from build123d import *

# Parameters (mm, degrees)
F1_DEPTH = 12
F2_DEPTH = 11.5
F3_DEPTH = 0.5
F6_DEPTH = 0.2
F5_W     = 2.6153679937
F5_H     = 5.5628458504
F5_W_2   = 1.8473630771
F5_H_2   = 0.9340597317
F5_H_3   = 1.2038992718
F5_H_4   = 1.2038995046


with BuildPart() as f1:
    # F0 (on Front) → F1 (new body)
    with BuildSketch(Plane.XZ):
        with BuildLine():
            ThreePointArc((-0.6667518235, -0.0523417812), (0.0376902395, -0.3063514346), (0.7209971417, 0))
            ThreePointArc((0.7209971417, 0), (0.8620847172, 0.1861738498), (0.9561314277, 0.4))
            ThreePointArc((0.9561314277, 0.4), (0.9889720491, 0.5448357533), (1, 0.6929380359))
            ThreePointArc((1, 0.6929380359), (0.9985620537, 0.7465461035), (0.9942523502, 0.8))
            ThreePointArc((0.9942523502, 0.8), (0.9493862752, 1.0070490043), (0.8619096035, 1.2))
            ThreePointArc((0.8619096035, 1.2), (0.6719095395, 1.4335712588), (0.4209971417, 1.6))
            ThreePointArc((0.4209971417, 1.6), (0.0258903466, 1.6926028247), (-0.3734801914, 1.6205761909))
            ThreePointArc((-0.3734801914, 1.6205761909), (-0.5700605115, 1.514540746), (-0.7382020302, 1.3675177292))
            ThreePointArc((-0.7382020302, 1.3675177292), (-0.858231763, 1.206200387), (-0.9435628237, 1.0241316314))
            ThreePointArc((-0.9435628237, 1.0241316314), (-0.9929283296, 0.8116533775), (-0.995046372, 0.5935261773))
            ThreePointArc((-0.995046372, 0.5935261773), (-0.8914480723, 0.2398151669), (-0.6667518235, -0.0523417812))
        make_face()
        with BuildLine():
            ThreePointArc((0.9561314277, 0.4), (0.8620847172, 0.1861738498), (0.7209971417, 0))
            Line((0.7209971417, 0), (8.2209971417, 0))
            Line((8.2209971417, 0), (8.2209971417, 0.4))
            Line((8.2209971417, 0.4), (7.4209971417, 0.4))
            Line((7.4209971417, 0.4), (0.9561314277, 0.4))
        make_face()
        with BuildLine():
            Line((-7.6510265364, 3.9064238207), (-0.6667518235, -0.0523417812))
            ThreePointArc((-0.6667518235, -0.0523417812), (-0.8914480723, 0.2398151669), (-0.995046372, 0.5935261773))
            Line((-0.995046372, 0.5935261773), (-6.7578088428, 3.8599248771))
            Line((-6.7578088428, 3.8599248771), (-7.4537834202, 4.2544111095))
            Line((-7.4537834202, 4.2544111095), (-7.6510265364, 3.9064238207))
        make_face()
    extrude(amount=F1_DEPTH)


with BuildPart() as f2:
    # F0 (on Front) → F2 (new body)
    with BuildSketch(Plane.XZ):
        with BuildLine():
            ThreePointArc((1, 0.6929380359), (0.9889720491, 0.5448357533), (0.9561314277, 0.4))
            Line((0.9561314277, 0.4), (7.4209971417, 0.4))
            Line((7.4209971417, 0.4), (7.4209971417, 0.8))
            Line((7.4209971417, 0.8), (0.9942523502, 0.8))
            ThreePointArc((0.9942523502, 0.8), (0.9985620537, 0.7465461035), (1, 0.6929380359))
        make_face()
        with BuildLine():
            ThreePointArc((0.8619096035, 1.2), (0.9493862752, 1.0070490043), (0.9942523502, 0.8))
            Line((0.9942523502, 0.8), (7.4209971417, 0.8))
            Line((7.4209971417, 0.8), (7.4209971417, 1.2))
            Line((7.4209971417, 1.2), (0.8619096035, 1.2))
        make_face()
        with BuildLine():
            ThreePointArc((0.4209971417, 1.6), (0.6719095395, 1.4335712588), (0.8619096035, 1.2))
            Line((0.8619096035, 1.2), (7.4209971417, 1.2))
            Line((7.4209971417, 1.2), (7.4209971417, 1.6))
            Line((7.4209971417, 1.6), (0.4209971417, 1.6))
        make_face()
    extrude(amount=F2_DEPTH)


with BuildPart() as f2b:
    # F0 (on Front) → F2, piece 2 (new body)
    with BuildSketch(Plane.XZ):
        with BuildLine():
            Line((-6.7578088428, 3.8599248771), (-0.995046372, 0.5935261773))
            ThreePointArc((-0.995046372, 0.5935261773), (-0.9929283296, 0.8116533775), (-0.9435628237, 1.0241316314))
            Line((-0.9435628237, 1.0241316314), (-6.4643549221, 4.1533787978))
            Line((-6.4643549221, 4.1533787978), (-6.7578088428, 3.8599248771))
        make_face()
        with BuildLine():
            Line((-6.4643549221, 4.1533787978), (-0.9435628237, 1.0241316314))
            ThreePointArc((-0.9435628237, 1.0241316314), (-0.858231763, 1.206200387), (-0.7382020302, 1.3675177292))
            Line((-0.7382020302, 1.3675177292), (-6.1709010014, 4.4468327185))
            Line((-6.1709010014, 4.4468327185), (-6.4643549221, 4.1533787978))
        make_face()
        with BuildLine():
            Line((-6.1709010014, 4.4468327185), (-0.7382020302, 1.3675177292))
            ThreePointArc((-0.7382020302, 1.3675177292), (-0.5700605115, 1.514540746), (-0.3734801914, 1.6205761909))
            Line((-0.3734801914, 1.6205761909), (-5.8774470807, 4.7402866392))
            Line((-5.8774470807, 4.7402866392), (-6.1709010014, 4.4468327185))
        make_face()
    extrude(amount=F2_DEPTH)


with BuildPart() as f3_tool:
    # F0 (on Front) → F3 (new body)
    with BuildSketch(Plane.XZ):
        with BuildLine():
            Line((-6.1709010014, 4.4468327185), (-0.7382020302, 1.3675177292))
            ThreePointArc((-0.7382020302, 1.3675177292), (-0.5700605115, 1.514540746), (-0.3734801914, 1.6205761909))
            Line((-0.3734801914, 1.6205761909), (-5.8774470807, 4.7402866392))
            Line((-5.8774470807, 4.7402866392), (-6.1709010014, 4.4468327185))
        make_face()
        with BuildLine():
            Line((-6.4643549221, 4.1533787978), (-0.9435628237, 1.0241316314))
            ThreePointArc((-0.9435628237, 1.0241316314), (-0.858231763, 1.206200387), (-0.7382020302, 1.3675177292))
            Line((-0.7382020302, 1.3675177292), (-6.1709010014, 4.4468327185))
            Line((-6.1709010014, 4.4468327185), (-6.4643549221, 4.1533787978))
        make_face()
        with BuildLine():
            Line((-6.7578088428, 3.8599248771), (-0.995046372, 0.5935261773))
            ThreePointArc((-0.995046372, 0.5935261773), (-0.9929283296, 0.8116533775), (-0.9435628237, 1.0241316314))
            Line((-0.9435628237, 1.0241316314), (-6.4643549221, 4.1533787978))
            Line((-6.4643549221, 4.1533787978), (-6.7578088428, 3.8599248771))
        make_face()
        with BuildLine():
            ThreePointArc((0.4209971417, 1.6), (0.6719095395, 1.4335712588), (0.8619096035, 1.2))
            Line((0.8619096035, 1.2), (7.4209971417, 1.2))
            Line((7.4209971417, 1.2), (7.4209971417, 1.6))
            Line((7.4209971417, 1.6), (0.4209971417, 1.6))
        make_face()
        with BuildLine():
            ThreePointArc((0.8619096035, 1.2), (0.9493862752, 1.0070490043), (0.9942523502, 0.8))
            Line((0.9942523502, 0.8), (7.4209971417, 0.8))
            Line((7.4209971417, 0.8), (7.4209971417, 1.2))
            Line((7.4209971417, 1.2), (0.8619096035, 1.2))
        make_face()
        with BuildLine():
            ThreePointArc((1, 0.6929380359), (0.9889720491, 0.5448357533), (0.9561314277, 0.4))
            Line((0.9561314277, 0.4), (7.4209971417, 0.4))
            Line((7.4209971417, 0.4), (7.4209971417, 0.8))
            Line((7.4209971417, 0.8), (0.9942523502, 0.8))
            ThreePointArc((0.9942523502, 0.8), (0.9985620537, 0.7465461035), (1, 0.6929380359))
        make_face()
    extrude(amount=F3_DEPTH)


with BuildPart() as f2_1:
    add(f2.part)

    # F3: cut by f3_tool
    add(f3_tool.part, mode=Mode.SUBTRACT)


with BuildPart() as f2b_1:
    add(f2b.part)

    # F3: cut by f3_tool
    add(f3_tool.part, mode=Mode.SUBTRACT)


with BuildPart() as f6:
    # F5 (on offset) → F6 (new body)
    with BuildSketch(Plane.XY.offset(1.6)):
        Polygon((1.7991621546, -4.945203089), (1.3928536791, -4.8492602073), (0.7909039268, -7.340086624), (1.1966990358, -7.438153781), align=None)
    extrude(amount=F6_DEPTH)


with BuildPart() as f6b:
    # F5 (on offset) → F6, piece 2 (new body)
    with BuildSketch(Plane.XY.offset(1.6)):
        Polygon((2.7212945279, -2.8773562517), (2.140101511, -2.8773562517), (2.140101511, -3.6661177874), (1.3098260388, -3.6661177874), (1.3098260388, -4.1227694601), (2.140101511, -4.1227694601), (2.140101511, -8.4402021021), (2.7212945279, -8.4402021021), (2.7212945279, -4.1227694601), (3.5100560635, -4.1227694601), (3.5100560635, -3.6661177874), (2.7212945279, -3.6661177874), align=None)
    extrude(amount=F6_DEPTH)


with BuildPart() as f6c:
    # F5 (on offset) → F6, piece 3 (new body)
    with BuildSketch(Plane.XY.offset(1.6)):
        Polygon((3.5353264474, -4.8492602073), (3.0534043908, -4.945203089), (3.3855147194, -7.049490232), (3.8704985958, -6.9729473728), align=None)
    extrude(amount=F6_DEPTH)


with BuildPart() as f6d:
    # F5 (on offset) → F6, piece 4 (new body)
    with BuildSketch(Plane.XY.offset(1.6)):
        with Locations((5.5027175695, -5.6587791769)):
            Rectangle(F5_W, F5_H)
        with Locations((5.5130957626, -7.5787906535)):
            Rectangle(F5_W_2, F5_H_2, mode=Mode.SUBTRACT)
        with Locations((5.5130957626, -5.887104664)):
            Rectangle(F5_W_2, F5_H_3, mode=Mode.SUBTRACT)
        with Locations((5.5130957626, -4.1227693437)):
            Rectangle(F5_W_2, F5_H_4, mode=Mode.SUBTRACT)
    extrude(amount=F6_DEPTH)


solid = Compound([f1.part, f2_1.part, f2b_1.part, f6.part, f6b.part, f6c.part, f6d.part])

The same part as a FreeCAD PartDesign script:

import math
import FreeCAD as App
import Part
import Sketcher

V = App.Vector
Q = App.Units.Quantity

doc = App.newDocument("Part")
body = doc.addObject("PartDesign::Body", "Body")

# Sketch on XZ plane
sketch1 = doc.addObject("Sketcher::SketchObject", "Sketch")
body.addObject(sketch1)
sketch1.AttachmentSupport = (doc.XZ_Plane, [""])
sketch1.MapMode = "FlatFace"
sketch1.addGeometry(Part.ArcOfCircle(Part.Circle(V(0, 0.69, 0), V(0, 0, 1), 1), math.radians(-132), math.radians(-44)), False)
sketch1.addGeometry(Part.LineSegment(V(0.72, 0, 0), V(8.22, 0, 0)), False)
sketch1.addGeometry(Part.LineSegment(V(8.22, 0, 0), V(8.22, 0.4, 0)), False)
sketch1.addGeometry(Part.LineSegment(V(8.22, 0.4, 0), V(0.96, 0.4, 0)), False)
sketch1.addGeometry(Part.ArcOfCircle(Part.Circle(V(0, 0.69, 0), V(0, 0, 1), 1), math.radians(-17.03), math.radians(0)), False)
sketch1.addGeometry(Part.ArcOfCircle(Part.Circle(V(0, 0.69, 0), V(0, 0, 1), 1), math.radians(0), math.radians(6.15)), False)
sketch1.addGeometry(Part.ArcOfCircle(Part.Circle(V(0, 0.69, 0), V(0, 0, 1), 1), math.radians(6), math.radians(30)), False)
sketch1.addGeometry(Part.ArcOfCircle(Part.Circle(V(0, 0.69, 0), V(0, 0, 1), 1), math.radians(30), math.radians(65)), False)
sketch1.addGeometry(Part.ArcOfCircle(Part.Circle(V(0, 0.69, 0), V(0, 0, 1), 1), math.radians(65), math.radians(112)), False)
sketch1.addGeometry(Part.ArcOfCircle(Part.Circle(V(0, 0.69, 0), V(0, 0, 1), 1), math.radians(112), math.radians(138)), False)
sketch1.addGeometry(Part.ArcOfCircle(Part.Circle(V(0, 0.69, 0), V(0, 0, 1), 1), math.radians(138), math.radians(161)), False)
sketch1.addGeometry(Part.ArcOfCircle(Part.Circle(V(0, 0.69, 0), V(0, 0, 1), 1), math.radians(161), math.radians(186)), False)
sketch1.addGeometry(Part.LineSegment(V(-1, 0.59, 0), V(-6.76, 3.86, 0)), False)
sketch1.addGeometry(Part.LineSegment(V(-6.76, 3.86, 0), V(-7.45, 4.25, 0)), False)
sketch1.addGeometry(Part.LineSegment(V(-7.45, 4.25, 0), V(-7.65, 3.91, 0)), False)
sketch1.addGeometry(Part.LineSegment(V(-7.65, 3.91, 0), V(-0.67, -0.05, 0)), False)
sketch1.addConstraint(Sketcher.Constraint("Coincident", 0, 2, 1, 1))
sketch1.addConstraint(Sketcher.Constraint("Coincident", 1, 2, 2, 1))
sketch1.addConstraint(Sketcher.Constraint("Coincident", 2, 2, 3, 1))
sketch1.addConstraint(Sketcher.Constraint("Coincident", 3, 2, 4, 1))
sketch1.addConstraint(Sketcher.Constraint("Tangent", 4, 2, 5, 1))
sketch1.addConstraint(Sketcher.Constraint("Tangent", 5, 2, 6, 1))
sketch1.addConstraint(Sketcher.Constraint("Tangent", 6, 2, 7, 1))
sketch1.addConstraint(Sketcher.Constraint("Tangent", 7, 2, 8, 1))
sketch1.addConstraint(Sketcher.Constraint("Tangent", 8, 2, 9, 1))
sketch1.addConstraint(Sketcher.Constraint("Tangent", 9, 2, 10, 1))
sketch1.addConstraint(Sketcher.Constraint("Tangent", 10, 2, 11, 1))
sketch1.addConstraint(Sketcher.Constraint("Coincident", 11, 2, 12, 1))
sketch1.addConstraint(Sketcher.Constraint("Coincident", 12, 2, 13, 1))
sketch1.addConstraint(Sketcher.Constraint("Coincident", 13, 2, 14, 1))
sketch1.addConstraint(Sketcher.Constraint("Coincident", 14, 2, 15, 1))
sketch1.addConstraint(Sketcher.Constraint("Coincident", 15, 2, 0, 1))
sketch1.addConstraint(Sketcher.Constraint("Horizontal", 1))
sketch1.addConstraint(Sketcher.Constraint("Vertical", 2))
sketch1.addConstraint(Sketcher.Constraint("Horizontal", 3))
sketch1.addConstraint(Sketcher.Constraint("Coincident", 4, 3, 0, 3))
sketch1.addConstraint(Sketcher.Constraint("Coincident", 6, 3, 0, 3))
sketch1.addConstraint(Sketcher.Constraint("Coincident", 8, 3, 0, 3))
sketch1.addConstraint(Sketcher.Constraint("Coincident", 10, 3, 0, 3))
sketch1.addConstraint(Sketcher.Constraint("Equal", 0, 4))
sketch1.addConstraint(Sketcher.Constraint("Equal", 10, 11))
sketch1.addConstraint(Sketcher.Constraint("PointOnObject", 0, 3, -2))
sketch1.addConstraint(Sketcher.Constraint("PointOnObject", 0, 2, -1))
sketch1.addConstraint(Sketcher.Constraint("Parallel", 12, 13))
sketch1.addConstraint(Sketcher.Constraint("Perpendicular", 13, 14))
sketch1.addConstraint(Sketcher.Constraint("Perpendicular", 14, 15))
sketch1.addConstraint(Sketcher.Constraint("Horizontal", 11, 3, 4, 2))
sketch1.addConstraint(Sketcher.Constraint("Radius", 0, 1.0))
sketch1.addConstraint(Sketcher.Constraint("DistanceX", 1, 1, 1, 2, 7.5))
sketch1.addConstraint(Sketcher.Constraint("DistanceY", 2, 1, 2, 2, 0.4))
sketch1.addConstraint(Sketcher.Constraint("Distance", 13, 0.8))
sketch1.addConstraint(Sketcher.Constraint("Distance", 14, 0.4))
sketch1.addConstraint(Sketcher.Constraint("DistanceY", -1, 1, 5, 2, 0.8))
sketch1.addConstraint(Sketcher.Constraint("DistanceY", -1, 1, 6, 2, 1.2))
sketch1.addConstraint(Sketcher.Constraint("DistanceY", -1, 1, 7, 2, 1.6))
sketch1.addConstraint(Sketcher.Constraint("DistanceY", 11, 2, 12, 2, 3.266399))
sketch1.addConstraint(Sketcher.Constraint("DistanceY", 12, 2, 14, 2, 0.046499))
sketch1.addConstraint(Sketcher.Constraint("DistanceX", 3, 2, 3, 1, 7.264866))
sketch1.addConstraint(Sketcher.Constraint("DistanceX", 8, 2, -1, 1, 0.37348))
sketch1.addConstraint(Sketcher.Constraint("DistanceY", -1, 1, 10, 2, 1.024132))
sketch1.addConstraint(Sketcher.Constraint("DistanceX", 12, 2, -1, 1, 6.757809))
sketch1.addConstraint(Sketcher.Constraint("DistanceX", 9, 2, 8, 2, 0.364722))
pad1 = doc.addObject("PartDesign::Pad", "Pad")
body.addObject(pad1)
pad1.Profile = sketch1
pad1.Length = 12
body2 = doc.addObject("PartDesign::Body", "Body001")

# Sketch on XZ plane
sketch2 = doc.addObject("Sketcher::SketchObject", "Sketch001")
body2.addObject(sketch2)
sketch2.AttachmentSupport = (doc.getObject("XZ_Plane001"), [""])
sketch2.MapMode = "FlatFace"
sketch2.addGeometry(Part.ArcOfCircle(Part.Circle(V(0, 0.69, 0), V(0, 0, 1), 1), math.radians(-17.03), math.radians(0)), False)
sketch2.addGeometry(Part.LineSegment(V(0.96, 0.4, 0), V(7.42, 0.4, 0)), False)
sketch2.addGeometry(Part.LineSegment(V(7.42, 0.4, 0), V(7.42, 1.6, 0)), False)
sketch2.addGeometry(Part.LineSegment(V(7.42, 1.6, 0), V(0.42, 1.6, 0)), False)
sketch2.addGeometry(Part.ArcOfCircle(Part.Circle(V(0, 0.69, 0), V(0, 0, 1), 1), math.radians(30), math.radians(65)), False)
sketch2.addGeometry(Part.ArcOfCircle(Part.Circle(V(0, 0.69, 0), V(0, 0, 1), 1), math.radians(6), math.radians(30)), False)
sketch2.addGeometry(Part.ArcOfCircle(Part.Circle(V(0, 0.69, 0), V(0, 0, 1), 1), math.radians(0), math.radians(6.15)), False)
sketch2.addConstraint(Sketcher.Constraint("Coincident", 0, 1, 1, 1))
sketch2.addConstraint(Sketcher.Constraint("Coincident", 1, 2, 2, 1))
sketch2.addConstraint(Sketcher.Constraint("Coincident", 2, 2, 3, 1))
sketch2.addConstraint(Sketcher.Constraint("Coincident", 3, 2, 4, 2))
sketch2.addConstraint(Sketcher.Constraint("Tangent", 4, 1, 5, 2))
sketch2.addConstraint(Sketcher.Constraint("Tangent", 5, 1, 6, 2))
sketch2.addConstraint(Sketcher.Constraint("Tangent", 6, 1, 0, 2))
sketch2.addConstraint(Sketcher.Constraint("Horizontal", 1))
sketch2.addConstraint(Sketcher.Constraint("Vertical", 2))
sketch2.addConstraint(Sketcher.Constraint("Horizontal", 3))
sketch2.addConstraint(Sketcher.Constraint("Coincident", 4, 3, 0, 3))
sketch2.addConstraint(Sketcher.Constraint("Equal", 0, 4))
sketch2.addConstraint(Sketcher.Constraint("PointOnObject", 0, 3, -2))
sketch2.addConstraint(Sketcher.Constraint("Horizontal", 5, 3, 6, 1))
sketch2.addConstraint(Sketcher.Constraint("Radius", 0, 1.0))
sketch2.addConstraint(Sketcher.Constraint("DistanceX", 3, 2, 3, 1, 7.0))
sketch2.addConstraint(Sketcher.Constraint("DistanceY", 2, 1, 2, 2, 1.2))
sketch2.addConstraint(Sketcher.Constraint("DistanceY", -1, 1, 0, 1, 0.4))
sketch2.addConstraint(Sketcher.Constraint("DistanceY", -1, 1, 4, 1, 1.2))
sketch2.addConstraint(Sketcher.Constraint("DistanceY", -1, 1, 5, 1, 0.8))
sketch2.addConstraint(Sketcher.Constraint("DistanceX", 1, 1, 1, 2, 6.464866))
pad2 = doc.addObject("PartDesign::Pad", "Pad001")
body2.addObject(pad2)
pad2.Profile = sketch2
pad2.Length = 11.5
body3 = doc.addObject("PartDesign::Body", "Body002")

# Sketch on XZ plane
sketch3 = doc.addObject("Sketcher::SketchObject", "Sketch002")
body3.addObject(sketch3)
sketch3.AttachmentSupport = (doc.getObject("XZ_Plane002"), [""])
sketch3.MapMode = "FlatFace"
sketch3.addGeometry(Part.LineSegment(V(-6.76, 3.86, 0), V(-1, 0.59, 0)), False)
sketch3.addGeometry(Part.ArcOfCircle(Part.Circle(V(0, 0.69, 0), V(0, 0, 1), 1), math.radians(161), math.radians(186)), False)
sketch3.addGeometry(Part.ArcOfCircle(Part.Circle(V(0, 0.69, 0), V(0, 0, 1), 1), math.radians(138), math.radians(161)), False)
sketch3.addGeometry(Part.ArcOfCircle(Part.Circle(V(0, 0.69, 0), V(0, 0, 1), 1), math.radians(112), math.radians(138)), False)
sketch3.addGeometry(Part.LineSegment(V(-0.37, 1.62, 0), V(-5.88, 4.74, 0)), False)
sketch3.addGeometry(Part.LineSegment(V(-5.88, 4.74, 0), V(-6.76, 3.86, 0)), False)
sketch3.addConstraint(Sketcher.Constraint("Coincident", 0, 2, 1, 2))
sketch3.addConstraint(Sketcher.Constraint("Tangent", 1, 1, 2, 2))
sketch3.addConstraint(Sketcher.Constraint("Tangent", 2, 1, 3, 2))
sketch3.addConstraint(Sketcher.Constraint("Coincident", 3, 1, 4, 1))
sketch3.addConstraint(Sketcher.Constraint("Coincident", 4, 2, 5, 1))
sketch3.addConstraint(Sketcher.Constraint("Coincident", 5, 2, 0, 1))
sketch3.addConstraint(Sketcher.Constraint("Coincident", 3, 3, 1, 3))
sketch3.addConstraint(Sketcher.Constraint("PointOnObject", 1, 3, -2))
sketch3.addConstraint(Sketcher.Constraint("Parallel", 0, 4))
sketch3.addConstraint(Sketcher.Constraint("Radius", 1, 1.0))
sketch3.addConstraint(Sketcher.Constraint("Angle", 5, Q("-135 deg")))
sketch3.addConstraint(Sketcher.Constraint("DistanceX", 4, 2, 0, 2, 4.882401))
sketch3.addConstraint(Sketcher.Constraint("DistanceY", 0, 2, 5, 2, 3.266399))
sketch3.addConstraint(Sketcher.Constraint("Distance", 4, 6.32663))
sketch3.addConstraint(Sketcher.Constraint("Distance", 5, 1.24502))
sketch3.addConstraint(Sketcher.Constraint("DistanceY", -1, 1, 1, 3, 0.692938))
sketch3.addConstraint(Sketcher.Constraint("DistanceY", -1, 1, 1, 1, 1.024132))
sketch3.addConstraint(Sketcher.Constraint("DistanceX", 1, 1, 2, 1, 0.205361))
pad3 = doc.addObject("PartDesign::Pad", "Pad002")
body3.addObject(pad3)
pad3.Profile = sketch3
pad3.Length = 11.5
body4 = doc.addObject("PartDesign::Body", "Body003")
body4.AllowCompound = True

# Sketch on XZ plane
sketch4 = doc.addObject("Sketcher::SketchObject", "Sketch003")
body4.addObject(sketch4)
sketch4.AttachmentSupport = (doc.getObject("XZ_Plane003"), [""])
sketch4.MapMode = "FlatFace"
sketch4.addGeometry(Part.ArcOfCircle(Part.Circle(V(0, 0.69, 0), V(0, 0, 1), 1), math.radians(112), math.radians(138)), False)
sketch4.addGeometry(Part.LineSegment(V(-0.37, 1.62, 0), V(-5.88, 4.74, 0)), False)
sketch4.addGeometry(Part.LineSegment(V(-5.88, 4.74, 0), V(-6.76, 3.86, 0)), False)
sketch4.addGeometry(Part.LineSegment(V(-6.76, 3.86, 0), V(-1, 0.59, 0)), False)
sketch4.addGeometry(Part.ArcOfCircle(Part.Circle(V(0, 0.69, 0), V(0, 0, 1), 1), math.radians(161), math.radians(186)), False)
sketch4.addGeometry(Part.ArcOfCircle(Part.Circle(V(0, 0.69, 0), V(0, 0, 1), 1), math.radians(138), math.radians(161)), False)
sketch4.addGeometry(Part.ArcOfCircle(Part.Circle(V(0, 0.69, 0), V(0, 0, 1), 1), math.radians(30), math.radians(65)), False)
sketch4.addGeometry(Part.ArcOfCircle(Part.Circle(V(0, 0.69, 0), V(0, 0, 1), 1), math.radians(6), math.radians(30)), False)
sketch4.addGeometry(Part.ArcOfCircle(Part.Circle(V(0, 0.69, 0), V(0, 0, 1), 1), math.radians(0), math.radians(6.15)), False)
sketch4.addGeometry(Part.ArcOfCircle(Part.Circle(V(0, 0.69, 0), V(0, 0, 1), 1), math.radians(-17.03), math.radians(0)), False)
sketch4.addGeometry(Part.LineSegment(V(0.96, 0.4, 0), V(7.42, 0.4, 0)), False)
sketch4.addGeometry(Part.LineSegment(V(7.42, 0.4, 0), V(7.42, 1.6, 0)), False)
sketch4.addGeometry(Part.LineSegment(V(7.42, 1.6, 0), V(0.42, 1.6, 0)), False)
sketch4.addConstraint(Sketcher.Constraint("Coincident", 0, 1, 1, 1))
sketch4.addConstraint(Sketcher.Constraint("Coincident", 1, 2, 2, 1))
sketch4.addConstraint(Sketcher.Constraint("Coincident", 2, 2, 3, 1))
sketch4.addConstraint(Sketcher.Constraint("Coincident", 3, 2, 4, 2))
sketch4.addConstraint(Sketcher.Constraint("Tangent", 4, 1, 5, 2))
sketch4.addConstraint(Sketcher.Constraint("Tangent", 5, 1, 0, 2))
sketch4.addConstraint(Sketcher.Constraint("Tangent", 6, 1, 7, 2))
sketch4.addConstraint(Sketcher.Constraint("Tangent", 7, 1, 8, 2))
sketch4.addConstraint(Sketcher.Constraint("Tangent", 8, 1, 9, 2))
sketch4.addConstraint(Sketcher.Constraint("Coincident", 9, 1, 10, 1))
sketch4.addConstraint(Sketcher.Constraint("Coincident", 10, 2, 11, 1))
sketch4.addConstraint(Sketcher.Constraint("Coincident", 11, 2, 12, 1))
sketch4.addConstraint(Sketcher.Constraint("Coincident", 12, 2, 6, 2))
sketch4.addConstraint(Sketcher.Constraint("Horizontal", 10))
sketch4.addConstraint(Sketcher.Constraint("Vertical", 11))
sketch4.addConstraint(Sketcher.Constraint("Horizontal", 12))
sketch4.addConstraint(Sketcher.Constraint("Coincident", 4, 3, 0, 3))
sketch4.addConstraint(Sketcher.Constraint("Coincident", 6, 3, 0, 3))
sketch4.addConstraint(Sketcher.Constraint("Coincident", 8, 3, 0, 3))
sketch4.addConstraint(Sketcher.Constraint("Equal", 5, 6))
sketch4.addConstraint(Sketcher.Constraint("Equal", 8, 9))
sketch4.addConstraint(Sketcher.Constraint("PointOnObject", 0, 3, -2))
sketch4.addConstraint(Sketcher.Constraint("Parallel", 1, 3))
sketch4.addConstraint(Sketcher.Constraint("Horizontal", 9, 3, 8, 1))
sketch4.addConstraint(Sketcher.Constraint("Radius", 0, 1.0))
sketch4.addConstraint(Sketcher.Constraint("DistanceX", 12, 2, 12, 1, 7.0))
sketch4.addConstraint(Sketcher.Constraint("Angle", 2, Q("-135 deg")))
sketch4.addConstraint(Sketcher.Constraint("DistanceY", 11, 1, 11, 2, 1.2))
sketch4.addConstraint(Sketcher.Constraint("DistanceY", -1, 1, 6, 1, 1.2))
sketch4.addConstraint(Sketcher.Constraint("DistanceY", -1, 1, 7, 1, 0.8))
sketch4.addConstraint(Sketcher.Constraint("DistanceY", -1, 1, 9, 1, 0.4))
sketch4.addConstraint(Sketcher.Constraint("Distance", 1, 6.32663))
sketch4.addConstraint(Sketcher.Constraint("Distance", 2, 1.24502))
sketch4.addConstraint(Sketcher.Constraint("DistanceX", 10, 1, 10, 2, 6.464866))
sketch4.addConstraint(Sketcher.Constraint("DistanceX", 0, 1, -1, 1, 0.37348))
sketch4.addConstraint(Sketcher.Constraint("DistanceX", 2, 2, -1, 1, 6.757809))
sketch4.addConstraint(Sketcher.Constraint("DistanceY", -1, 1, 4, 1, 1.024132))
sketch4.addConstraint(Sketcher.Constraint("DistanceX", 4, 1, 5, 1, 0.205361))
pad4 = doc.addObject("PartDesign::Pad", "Pad003")
body4.addObject(pad4)
pad4.Profile = sketch4
pad4.Length = 0.5
doc.recompute()

body5 = doc.addObject("PartDesign::Body", "Body004")
body5.BaseFeature = body4
boolean = doc.addObject("PartDesign::Boolean", "Boolean")
body2.addObject(boolean)
boolean.Type = "Cut"
boolean.addObjects([body5])
doc.recompute()

boolean2 = doc.addObject("PartDesign::Boolean", "Boolean001")
body3.addObject(boolean2)
boolean2.Type = "Cut"
boolean2.addObjects([body4])
body6 = doc.addObject("PartDesign::Body", "Body005")

# Sketch on XY plane
sketch5 = doc.addObject("Sketcher::SketchObject", "Sketch004")
body6.addObject(sketch5)
sketch5.AttachmentSupport = (doc.getObject("XY_Plane005"), [""])
sketch5.MapMode = "FlatFace"
sketch5.AttachmentOffset = App.Placement(V(0, 0, 1.6), App.Rotation())
sketch5.addGeometry(Part.LineSegment(V(1.8, -4.95, 0), V(1.39, -4.85, 0)), False)
sketch5.addGeometry(Part.LineSegment(V(1.39, -4.85, 0), V(0.79, -7.34, 0)), False)
sketch5.addGeometry(Part.LineSegment(V(0.79, -7.34, 0), V(1.2, -7.44, 0)), False)
sketch5.addGeometry(Part.LineSegment(V(1.2, -7.44, 0), V(1.8, -4.95, 0)), False)
sketch5.addConstraint(Sketcher.Constraint("Coincident", 0, 2, 1, 1))
sketch5.addConstraint(Sketcher.Constraint("Coincident", 1, 2, 2, 1))
sketch5.addConstraint(Sketcher.Constraint("Coincident", 2, 2, 3, 1))
sketch5.addConstraint(Sketcher.Constraint("Coincident", 3, 2, 0, 1))
sketch5.addConstraint(Sketcher.Constraint("Perpendicular", 1, 2))
sketch5.addConstraint(Sketcher.Constraint("Perpendicular", 2, 3))
sketch5.addConstraint(Sketcher.Constraint("DistanceX", -1, 1, 2, 2, 1.196699))
sketch5.addConstraint(Sketcher.Constraint("Distance", 1, 2.56253))
sketch5.addConstraint(Sketcher.Constraint("DistanceY", 0, 2, -1, 1, 4.84926))
sketch5.addConstraint(Sketcher.Constraint("DistanceX", 1, 2, 0, 2, 0.60195))
sketch5.addConstraint(Sketcher.Constraint("DistanceX", 0, 2, 3, 2, 0.406308))
sketch5.addConstraint(Sketcher.Constraint("DistanceY", 2, 2, 3, 2, 2.492951))
pad5 = doc.addObject("PartDesign::Pad", "Pad004")
body6.addObject(pad5)
pad5.Profile = sketch5
pad5.Length = 0.2
body7 = doc.addObject("PartDesign::Body", "Body006")

# Sketch on XY plane
sketch6 = doc.addObject("Sketcher::SketchObject", "Sketch005")
body7.addObject(sketch6)
sketch6.AttachmentSupport = (doc.getObject("XY_Plane006"), [""])
sketch6.MapMode = "FlatFace"
sketch6.AttachmentOffset = App.Placement(V(0, 0, 1.6), App.Rotation())
sketch6.addGeometry(Part.LineSegment(V(2.72, -2.88, 0), V(2.14, -2.88, 0)), False)
sketch6.addGeometry(Part.LineSegment(V(2.14, -2.88, 0), V(2.14, -3.67, 0)), False)
sketch6.addGeometry(Part.LineSegment(V(2.14, -3.67, 0), V(1.31, -3.67, 0)), False)
sketch6.addGeometry(Part.LineSegment(V(1.31, -3.67, 0), V(1.31, -4.12, 0)), False)
sketch6.addGeometry(Part.LineSegment(V(1.31, -4.12, 0), V(2.14, -4.12, 0)), False)
sketch6.addGeometry(Part.LineSegment(V(2.14, -4.12, 0), V(2.14, -8.44, 0)), False)
sketch6.addGeometry(Part.LineSegment(V(2.14, -8.44, 0), V(2.72, -8.44, 0)), False)
sketch6.addGeometry(Part.LineSegment(V(2.72, -8.44, 0), V(2.72, -4.12, 0)), False)
sketch6.addGeometry(Part.LineSegment(V(2.72, -4.12, 0), V(3.51, -4.12, 0)), False)
sketch6.addGeometry(Part.LineSegment(V(3.51, -4.12, 0), V(3.51, -3.67, 0)), False)
sketch6.addGeometry(Part.LineSegment(V(3.51, -3.67, 0), V(2.72, -3.67, 0)), False)
sketch6.addGeometry(Part.LineSegment(V(2.72, -3.67, 0), V(2.72, -2.88, 0)), False)
sketch6.addConstraint(Sketcher.Constraint("Coincident", 0, 2, 1, 1))
sketch6.addConstraint(Sketcher.Constraint("Coincident", 1, 2, 2, 1))
sketch6.addConstraint(Sketcher.Constraint("Coincident", 2, 2, 3, 1))
sketch6.addConstraint(Sketcher.Constraint("Coincident", 3, 2, 4, 1))
sketch6.addConstraint(Sketcher.Constraint("Coincident", 4, 2, 5, 1))
sketch6.addConstraint(Sketcher.Constraint("Coincident", 5, 2, 6, 1))
sketch6.addConstraint(Sketcher.Constraint("Coincident", 6, 2, 7, 1))
sketch6.addConstraint(Sketcher.Constraint("Coincident", 7, 2, 8, 1))
sketch6.addConstraint(Sketcher.Constraint("Coincident", 8, 2, 9, 1))
sketch6.addConstraint(Sketcher.Constraint("Coincident", 9, 2, 10, 1))
sketch6.addConstraint(Sketcher.Constraint("Coincident", 10, 2, 11, 1))
sketch6.addConstraint(Sketcher.Constraint("Coincident", 11, 2, 0, 1))
sketch6.addConstraint(Sketcher.Constraint("Horizontal", 0))
sketch6.addConstraint(Sketcher.Constraint("Vertical", 1))
sketch6.addConstraint(Sketcher.Constraint("Horizontal", 2))
sketch6.addConstraint(Sketcher.Constraint("Vertical", 3))
sketch6.addConstraint(Sketcher.Constraint("Horizontal", 4))
sketch6.addConstraint(Sketcher.Constraint("Vertical", 5))
sketch6.addConstraint(Sketcher.Constraint("Horizontal", 6))
sketch6.addConstraint(Sketcher.Constraint("Vertical", 7))
sketch6.addConstraint(Sketcher.Constraint("Horizontal", 8))
sketch6.addConstraint(Sketcher.Constraint("Vertical", 9))
sketch6.addConstraint(Sketcher.Constraint("Horizontal", 10))
sketch6.addConstraint(Sketcher.Constraint("Vertical", 11))
sketch6.addConstraint(Sketcher.Constraint("Horizontal", 4, 2, 7, 2))
sketch6.addConstraint(Sketcher.Constraint("Horizontal", 2, 2, 9, 2))
sketch6.addConstraint(Sketcher.Constraint("Vertical", 1, 2, 4, 2))
sketch6.addConstraint(Sketcher.Constraint("Vertical", 7, 2, 10, 2))
sketch6.addConstraint(Sketcher.Constraint("Equal", 10, 1))
sketch6.addConstraint(Sketcher.Constraint("DistanceX", 8, 1, 8, 2, 0.788762))
sketch6.addConstraint(Sketcher.Constraint("DistanceY", 3, 2, 3, 1, 0.456652))
sketch6.addConstraint(Sketcher.Constraint("DistanceX", -1, 1, 0, 2, 2.140102))
sketch6.addConstraint(Sketcher.Constraint("DistanceX", 0, 2, 0, 1, 0.581193))
sketch6.addConstraint(Sketcher.Constraint("DistanceX", 2, 2, 2, 1, 0.830275))
sketch6.addConstraint(Sketcher.Constraint("DistanceY", 5, 2, 5, 1, 4.317433))
sketch6.addConstraint(Sketcher.Constraint("DistanceY", 3, 2, -1, 1, 4.122769))
pad6 = doc.addObject("PartDesign::Pad", "Pad005")
body7.addObject(pad6)
pad6.Profile = sketch6
pad6.Length = 0.2
body8 = doc.addObject("PartDesign::Body", "Body007")

# Sketch on XY plane
sketch7 = doc.addObject("Sketcher::SketchObject", "Sketch006")
body8.addObject(sketch7)
sketch7.AttachmentSupport = (doc.getObject("XY_Plane007"), [""])
sketch7.MapMode = "FlatFace"
sketch7.AttachmentOffset = App.Placement(V(0, 0, 1.6), App.Rotation())
sketch7.addGeometry(Part.LineSegment(V(3.54, -4.85, 0), V(3.05, -4.95, 0)), False)
sketch7.addGeometry(Part.LineSegment(V(3.05, -4.95, 0), V(3.39, -7.05, 0)), False)
sketch7.addGeometry(Part.LineSegment(V(3.39, -7.05, 0), V(3.87, -6.97, 0)), False)
sketch7.addGeometry(Part.LineSegment(V(3.87, -6.97, 0), V(3.54, -4.85, 0)), False)
sketch7.addConstraint(Sketcher.Constraint("Coincident", 0, 2, 1, 1))
sketch7.addConstraint(Sketcher.Constraint("Coincident", 1, 2, 2, 1))
sketch7.addConstraint(Sketcher.Constraint("Coincident", 2, 2, 3, 1))
sketch7.addConstraint(Sketcher.Constraint("Coincident", 3, 2, 0, 1))
sketch7.addConstraint(Sketcher.Constraint("Perpendicular", 1, 2))
sketch7.addConstraint(Sketcher.Constraint("Perpendicular", 2, 3))
sketch7.addConstraint(Sketcher.Constraint("DistanceX", -1, 1, 2, 2, 3.870499))
sketch7.addConstraint(Sketcher.Constraint("Distance", 0, 0.49138))
sketch7.addConstraint(Sketcher.Constraint("DistanceY", 1, 2, -1, 1, 7.04949))
sketch7.addConstraint(Sketcher.Constraint("DistanceY", 3, 2, -1, 1, 4.84926))
sketch7.addConstraint(Sketcher.Constraint("DistanceX", 0, 2, 1, 2, 0.33211))
sketch7.addConstraint(Sketcher.Constraint("DistanceX", 1, 2, 3, 2, 0.149812))
pad7 = doc.addObject("PartDesign::Pad", "Pad006")
body8.addObject(pad7)
pad7.Profile = sketch7
pad7.Length = 0.2
body9 = doc.addObject("PartDesign::Body", "Body008")

# Sketch on XY plane
sketch8 = doc.addObject("Sketcher::SketchObject", "Sketch007")
body9.addObject(sketch8)
sketch8.AttachmentSupport = (doc.getObject("XY_Plane008"), [""])
sketch8.MapMode = "FlatFace"
sketch8.AttachmentOffset = App.Placement(V(0, 0, 1.6), App.Rotation())
sketch8.addGeometry(Part.LineSegment(V(4.2, -2.9, 0), V(4.2, -8.4, 0)), False)
sketch8.addGeometry(Part.LineSegment(V(4.2, -8.4, 0), V(6.8, -8.4, 0)), False)
sketch8.addGeometry(Part.LineSegment(V(6.8, -8.4, 0), V(6.8, -2.9, 0)), False)
sketch8.addGeometry(Part.LineSegment(V(6.8, -2.9, 0), V(4.2, -2.9, 0)), False)
sketch8.addGeometry(Part.LineSegment(V(6.4, -8, 0), V(4.6, -8, 0)), False)
sketch8.addGeometry(Part.LineSegment(V(4.6, -8, 0), V(4.6, -7.1, 0)), False)
sketch8.addGeometry(Part.LineSegment(V(4.6, -7.1, 0), V(6.4, -7.1, 0)), False)
sketch8.addGeometry(Part.LineSegment(V(6.4, -7.1, 0), V(6.4, -8, 0)), False)
sketch8.addGeometry(Part.LineSegment(V(6.4, -6.5, 0), V(4.6, -6.5, 0)), False)
sketch8.addGeometry(Part.LineSegment(V(4.6, -6.5, 0), V(4.6, -5.3, 0)), False)
sketch8.addGeometry(Part.LineSegment(V(4.6, -5.3, 0), V(6.4, -5.3, 0)), False)
sketch8.addGeometry(Part.LineSegment(V(6.4, -5.3, 0), V(6.4, -6.5, 0)), False)
sketch8.addGeometry(Part.LineSegment(V(6.4, -4.7, 0), V(4.6, -4.7, 0)), False)
sketch8.addGeometry(Part.LineSegment(V(4.6, -4.7, 0), V(4.6, -3.5, 0)), False)
sketch8.addGeometry(Part.LineSegment(V(4.6, -3.5, 0), V(6.4, -3.5, 0)), False)
sketch8.addGeometry(Part.LineSegment(V(6.4, -3.5, 0), V(6.4, -4.7, 0)), False)
sketch8.addConstraint(Sketcher.Constraint("Coincident", 0, 2, 1, 1))
sketch8.addConstraint(Sketcher.Constraint("Coincident", 1, 2, 2, 1))
sketch8.addConstraint(Sketcher.Constraint("Coincident", 2, 2, 3, 1))
sketch8.addConstraint(Sketcher.Constraint("Coincident", 3, 2, 0, 1))
sketch8.addConstraint(Sketcher.Constraint("Coincident", 4, 2, 5, 1))
sketch8.addConstraint(Sketcher.Constraint("Coincident", 5, 2, 6, 1))
sketch8.addConstraint(Sketcher.Constraint("Coincident", 6, 2, 7, 1))
sketch8.addConstraint(Sketcher.Constraint("Coincident", 7, 2, 4, 1))
sketch8.addConstraint(Sketcher.Constraint("Coincident", 8, 2, 9, 1))
sketch8.addConstraint(Sketcher.Constraint("Coincident", 9, 2, 10, 1))
sketch8.addConstraint(Sketcher.Constraint("Coincident", 10, 2, 11, 1))
sketch8.addConstraint(Sketcher.Constraint("Coincident", 11, 2, 8, 1))
sketch8.addConstraint(Sketcher.Constraint("Coincident", 12, 2, 13, 1))
sketch8.addConstraint(Sketcher.Constraint("Coincident", 13, 2, 14, 1))
sketch8.addConstraint(Sketcher.Constraint("Coincident", 14, 2, 15, 1))
sketch8.addConstraint(Sketcher.Constraint("Coincident", 15, 2, 12, 1))
sketch8.addConstraint(Sketcher.Constraint("Vertical", 0))
sketch8.addConstraint(Sketcher.Constraint("Horizontal", 1))
sketch8.addConstraint(Sketcher.Constraint("Vertical", 2))
sketch8.addConstraint(Sketcher.Constraint("Horizontal", 3))
sketch8.addConstraint(Sketcher.Constraint("Horizontal", 4))
sketch8.addConstraint(Sketcher.Constraint("Vertical", 5))
sketch8.addConstraint(Sketcher.Constraint("Horizontal", 6))
sketch8.addConstraint(Sketcher.Constraint("Vertical", 7))
sketch8.addConstraint(Sketcher.Constraint("Horizontal", 8))
sketch8.addConstraint(Sketcher.Constraint("Vertical", 9))
sketch8.addConstraint(Sketcher.Constraint("Horizontal", 10))
sketch8.addConstraint(Sketcher.Constraint("Vertical", 11))
sketch8.addConstraint(Sketcher.Constraint("Horizontal", 12))
sketch8.addConstraint(Sketcher.Constraint("Vertical", 13))
sketch8.addConstraint(Sketcher.Constraint("Horizontal", 14))
sketch8.addConstraint(Sketcher.Constraint("Vertical", 15))
sketch8.addConstraint(Sketcher.Constraint("Vertical", 5, 2, 8, 2))
sketch8.addConstraint(Sketcher.Constraint("Vertical", 7, 2, 10, 2))
sketch8.addConstraint(Sketcher.Constraint("Vertical", 9, 2, 12, 2))
sketch8.addConstraint(Sketcher.Constraint("Vertical", 11, 2, 14, 2))
sketch8.addConstraint(Sketcher.Constraint("Equal", 11, 13))
sketch8.addConstraint(Sketcher.Constraint("DistanceY", 9, 1, 9, 2, 1.203899))
sketch8.addConstraint(Sketcher.Constraint("DistanceY", 5, 1, 5, 2, 0.93406))
sketch8.addConstraint(Sketcher.Constraint("DistanceX", -1, 1, 1, 2, 6.810402))
sketch8.addConstraint(Sketcher.Constraint("DistanceY", 9, 2, 3, 2, 2.407799))
sketch8.addConstraint(Sketcher.Constraint("DistanceX", 1, 1, 1, 2, 2.615368))
sketch8.addConstraint(Sketcher.Constraint("DistanceX", 4, 2, 4, 1, 1.847363))
sketch8.addConstraint(Sketcher.Constraint("DistanceY", 0, 2, 0, 1, 5.562846))
sketch8.addConstraint(Sketcher.Constraint("DistanceY", 4, 2, -1, 1, 8.045821))
sketch8.addConstraint(Sketcher.Constraint("DistanceY", 12, 2, -1, 1, 4.724719))
sketch8.addConstraint(Sketcher.Constraint("DistanceX", 0, 2, 4, 2, 0.394381))
sketch8.addConstraint(Sketcher.Constraint("DistanceY", 0, 2, 4, 2, 0.394382))
pad8 = doc.addObject("PartDesign::Pad", "Pad007")
body9.addObject(pad8)
pad8.Profile = sketch8
pad8.Length = 0.2

doc.recompute()
